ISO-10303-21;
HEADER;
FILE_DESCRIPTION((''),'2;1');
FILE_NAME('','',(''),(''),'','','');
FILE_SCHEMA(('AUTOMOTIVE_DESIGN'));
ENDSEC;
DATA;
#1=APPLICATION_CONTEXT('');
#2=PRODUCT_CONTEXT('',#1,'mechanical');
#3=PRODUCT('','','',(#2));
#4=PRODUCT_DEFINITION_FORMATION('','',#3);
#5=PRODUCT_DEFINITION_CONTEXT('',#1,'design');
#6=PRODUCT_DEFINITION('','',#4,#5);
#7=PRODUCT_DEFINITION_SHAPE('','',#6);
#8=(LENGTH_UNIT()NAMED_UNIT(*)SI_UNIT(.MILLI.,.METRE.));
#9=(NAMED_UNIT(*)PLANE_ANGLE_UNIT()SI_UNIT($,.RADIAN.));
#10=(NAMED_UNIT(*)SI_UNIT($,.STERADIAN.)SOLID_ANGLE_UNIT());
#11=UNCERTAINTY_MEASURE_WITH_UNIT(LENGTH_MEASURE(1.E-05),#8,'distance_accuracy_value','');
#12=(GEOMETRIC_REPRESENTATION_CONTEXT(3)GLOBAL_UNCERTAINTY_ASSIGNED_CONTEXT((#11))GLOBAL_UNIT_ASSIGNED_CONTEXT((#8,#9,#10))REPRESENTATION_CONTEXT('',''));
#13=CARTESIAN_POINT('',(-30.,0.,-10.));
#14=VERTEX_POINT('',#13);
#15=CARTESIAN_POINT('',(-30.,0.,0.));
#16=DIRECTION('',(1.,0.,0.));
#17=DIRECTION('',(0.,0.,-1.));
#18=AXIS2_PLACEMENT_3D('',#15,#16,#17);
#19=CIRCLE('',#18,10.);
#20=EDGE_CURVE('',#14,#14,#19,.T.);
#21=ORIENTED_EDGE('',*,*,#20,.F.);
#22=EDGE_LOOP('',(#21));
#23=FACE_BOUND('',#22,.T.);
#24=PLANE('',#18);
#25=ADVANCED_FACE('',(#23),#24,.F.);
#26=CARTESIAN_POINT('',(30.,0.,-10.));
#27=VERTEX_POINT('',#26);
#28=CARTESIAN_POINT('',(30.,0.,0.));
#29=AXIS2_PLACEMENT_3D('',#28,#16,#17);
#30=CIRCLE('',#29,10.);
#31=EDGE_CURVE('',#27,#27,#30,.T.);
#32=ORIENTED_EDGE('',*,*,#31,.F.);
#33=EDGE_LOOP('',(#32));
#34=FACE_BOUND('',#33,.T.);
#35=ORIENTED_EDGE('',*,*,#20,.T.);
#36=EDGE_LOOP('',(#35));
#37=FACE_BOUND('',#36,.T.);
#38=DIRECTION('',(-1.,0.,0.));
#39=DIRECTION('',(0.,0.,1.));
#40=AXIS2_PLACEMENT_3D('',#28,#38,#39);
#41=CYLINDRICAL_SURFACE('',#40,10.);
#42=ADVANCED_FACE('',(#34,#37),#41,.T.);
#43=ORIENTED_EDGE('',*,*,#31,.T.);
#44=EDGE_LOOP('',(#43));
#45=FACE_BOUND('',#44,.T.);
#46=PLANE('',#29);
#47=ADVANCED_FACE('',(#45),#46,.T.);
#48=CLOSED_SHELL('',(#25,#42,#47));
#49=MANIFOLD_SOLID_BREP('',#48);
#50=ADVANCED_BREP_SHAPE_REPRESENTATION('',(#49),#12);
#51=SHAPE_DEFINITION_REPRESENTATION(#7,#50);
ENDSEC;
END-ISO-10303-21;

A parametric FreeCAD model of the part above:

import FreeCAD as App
import Part
import Sketcher

doc = App.newDocument("Part")
body = doc.addObject("PartDesign::Body", "Body")

sketch1 = body.newObject("Sketcher::SketchObject", "Sketch")
sketch1.AttachmentSupport = (doc.getObject("YZ_Plane"), [""])
sketch1.MapMode = "FlatFace"
sketch1.addGeometry(Part.Circle(App.Vector(0, 0, 0), App.Vector(0, 0, 1), 10), False)
sketch1.addConstraint([
    Sketcher.Constraint("Coincident", 0, 3, -1, 1),
    Sketcher.Constraint("Diameter", 0, 20.0),
])
pad1 = body.newObject("PartDesign::Pad", "Pad")
pad1.Profile = sketch1
pad1.Length = 60
pad1.Midplane = True

doc.recompute()
